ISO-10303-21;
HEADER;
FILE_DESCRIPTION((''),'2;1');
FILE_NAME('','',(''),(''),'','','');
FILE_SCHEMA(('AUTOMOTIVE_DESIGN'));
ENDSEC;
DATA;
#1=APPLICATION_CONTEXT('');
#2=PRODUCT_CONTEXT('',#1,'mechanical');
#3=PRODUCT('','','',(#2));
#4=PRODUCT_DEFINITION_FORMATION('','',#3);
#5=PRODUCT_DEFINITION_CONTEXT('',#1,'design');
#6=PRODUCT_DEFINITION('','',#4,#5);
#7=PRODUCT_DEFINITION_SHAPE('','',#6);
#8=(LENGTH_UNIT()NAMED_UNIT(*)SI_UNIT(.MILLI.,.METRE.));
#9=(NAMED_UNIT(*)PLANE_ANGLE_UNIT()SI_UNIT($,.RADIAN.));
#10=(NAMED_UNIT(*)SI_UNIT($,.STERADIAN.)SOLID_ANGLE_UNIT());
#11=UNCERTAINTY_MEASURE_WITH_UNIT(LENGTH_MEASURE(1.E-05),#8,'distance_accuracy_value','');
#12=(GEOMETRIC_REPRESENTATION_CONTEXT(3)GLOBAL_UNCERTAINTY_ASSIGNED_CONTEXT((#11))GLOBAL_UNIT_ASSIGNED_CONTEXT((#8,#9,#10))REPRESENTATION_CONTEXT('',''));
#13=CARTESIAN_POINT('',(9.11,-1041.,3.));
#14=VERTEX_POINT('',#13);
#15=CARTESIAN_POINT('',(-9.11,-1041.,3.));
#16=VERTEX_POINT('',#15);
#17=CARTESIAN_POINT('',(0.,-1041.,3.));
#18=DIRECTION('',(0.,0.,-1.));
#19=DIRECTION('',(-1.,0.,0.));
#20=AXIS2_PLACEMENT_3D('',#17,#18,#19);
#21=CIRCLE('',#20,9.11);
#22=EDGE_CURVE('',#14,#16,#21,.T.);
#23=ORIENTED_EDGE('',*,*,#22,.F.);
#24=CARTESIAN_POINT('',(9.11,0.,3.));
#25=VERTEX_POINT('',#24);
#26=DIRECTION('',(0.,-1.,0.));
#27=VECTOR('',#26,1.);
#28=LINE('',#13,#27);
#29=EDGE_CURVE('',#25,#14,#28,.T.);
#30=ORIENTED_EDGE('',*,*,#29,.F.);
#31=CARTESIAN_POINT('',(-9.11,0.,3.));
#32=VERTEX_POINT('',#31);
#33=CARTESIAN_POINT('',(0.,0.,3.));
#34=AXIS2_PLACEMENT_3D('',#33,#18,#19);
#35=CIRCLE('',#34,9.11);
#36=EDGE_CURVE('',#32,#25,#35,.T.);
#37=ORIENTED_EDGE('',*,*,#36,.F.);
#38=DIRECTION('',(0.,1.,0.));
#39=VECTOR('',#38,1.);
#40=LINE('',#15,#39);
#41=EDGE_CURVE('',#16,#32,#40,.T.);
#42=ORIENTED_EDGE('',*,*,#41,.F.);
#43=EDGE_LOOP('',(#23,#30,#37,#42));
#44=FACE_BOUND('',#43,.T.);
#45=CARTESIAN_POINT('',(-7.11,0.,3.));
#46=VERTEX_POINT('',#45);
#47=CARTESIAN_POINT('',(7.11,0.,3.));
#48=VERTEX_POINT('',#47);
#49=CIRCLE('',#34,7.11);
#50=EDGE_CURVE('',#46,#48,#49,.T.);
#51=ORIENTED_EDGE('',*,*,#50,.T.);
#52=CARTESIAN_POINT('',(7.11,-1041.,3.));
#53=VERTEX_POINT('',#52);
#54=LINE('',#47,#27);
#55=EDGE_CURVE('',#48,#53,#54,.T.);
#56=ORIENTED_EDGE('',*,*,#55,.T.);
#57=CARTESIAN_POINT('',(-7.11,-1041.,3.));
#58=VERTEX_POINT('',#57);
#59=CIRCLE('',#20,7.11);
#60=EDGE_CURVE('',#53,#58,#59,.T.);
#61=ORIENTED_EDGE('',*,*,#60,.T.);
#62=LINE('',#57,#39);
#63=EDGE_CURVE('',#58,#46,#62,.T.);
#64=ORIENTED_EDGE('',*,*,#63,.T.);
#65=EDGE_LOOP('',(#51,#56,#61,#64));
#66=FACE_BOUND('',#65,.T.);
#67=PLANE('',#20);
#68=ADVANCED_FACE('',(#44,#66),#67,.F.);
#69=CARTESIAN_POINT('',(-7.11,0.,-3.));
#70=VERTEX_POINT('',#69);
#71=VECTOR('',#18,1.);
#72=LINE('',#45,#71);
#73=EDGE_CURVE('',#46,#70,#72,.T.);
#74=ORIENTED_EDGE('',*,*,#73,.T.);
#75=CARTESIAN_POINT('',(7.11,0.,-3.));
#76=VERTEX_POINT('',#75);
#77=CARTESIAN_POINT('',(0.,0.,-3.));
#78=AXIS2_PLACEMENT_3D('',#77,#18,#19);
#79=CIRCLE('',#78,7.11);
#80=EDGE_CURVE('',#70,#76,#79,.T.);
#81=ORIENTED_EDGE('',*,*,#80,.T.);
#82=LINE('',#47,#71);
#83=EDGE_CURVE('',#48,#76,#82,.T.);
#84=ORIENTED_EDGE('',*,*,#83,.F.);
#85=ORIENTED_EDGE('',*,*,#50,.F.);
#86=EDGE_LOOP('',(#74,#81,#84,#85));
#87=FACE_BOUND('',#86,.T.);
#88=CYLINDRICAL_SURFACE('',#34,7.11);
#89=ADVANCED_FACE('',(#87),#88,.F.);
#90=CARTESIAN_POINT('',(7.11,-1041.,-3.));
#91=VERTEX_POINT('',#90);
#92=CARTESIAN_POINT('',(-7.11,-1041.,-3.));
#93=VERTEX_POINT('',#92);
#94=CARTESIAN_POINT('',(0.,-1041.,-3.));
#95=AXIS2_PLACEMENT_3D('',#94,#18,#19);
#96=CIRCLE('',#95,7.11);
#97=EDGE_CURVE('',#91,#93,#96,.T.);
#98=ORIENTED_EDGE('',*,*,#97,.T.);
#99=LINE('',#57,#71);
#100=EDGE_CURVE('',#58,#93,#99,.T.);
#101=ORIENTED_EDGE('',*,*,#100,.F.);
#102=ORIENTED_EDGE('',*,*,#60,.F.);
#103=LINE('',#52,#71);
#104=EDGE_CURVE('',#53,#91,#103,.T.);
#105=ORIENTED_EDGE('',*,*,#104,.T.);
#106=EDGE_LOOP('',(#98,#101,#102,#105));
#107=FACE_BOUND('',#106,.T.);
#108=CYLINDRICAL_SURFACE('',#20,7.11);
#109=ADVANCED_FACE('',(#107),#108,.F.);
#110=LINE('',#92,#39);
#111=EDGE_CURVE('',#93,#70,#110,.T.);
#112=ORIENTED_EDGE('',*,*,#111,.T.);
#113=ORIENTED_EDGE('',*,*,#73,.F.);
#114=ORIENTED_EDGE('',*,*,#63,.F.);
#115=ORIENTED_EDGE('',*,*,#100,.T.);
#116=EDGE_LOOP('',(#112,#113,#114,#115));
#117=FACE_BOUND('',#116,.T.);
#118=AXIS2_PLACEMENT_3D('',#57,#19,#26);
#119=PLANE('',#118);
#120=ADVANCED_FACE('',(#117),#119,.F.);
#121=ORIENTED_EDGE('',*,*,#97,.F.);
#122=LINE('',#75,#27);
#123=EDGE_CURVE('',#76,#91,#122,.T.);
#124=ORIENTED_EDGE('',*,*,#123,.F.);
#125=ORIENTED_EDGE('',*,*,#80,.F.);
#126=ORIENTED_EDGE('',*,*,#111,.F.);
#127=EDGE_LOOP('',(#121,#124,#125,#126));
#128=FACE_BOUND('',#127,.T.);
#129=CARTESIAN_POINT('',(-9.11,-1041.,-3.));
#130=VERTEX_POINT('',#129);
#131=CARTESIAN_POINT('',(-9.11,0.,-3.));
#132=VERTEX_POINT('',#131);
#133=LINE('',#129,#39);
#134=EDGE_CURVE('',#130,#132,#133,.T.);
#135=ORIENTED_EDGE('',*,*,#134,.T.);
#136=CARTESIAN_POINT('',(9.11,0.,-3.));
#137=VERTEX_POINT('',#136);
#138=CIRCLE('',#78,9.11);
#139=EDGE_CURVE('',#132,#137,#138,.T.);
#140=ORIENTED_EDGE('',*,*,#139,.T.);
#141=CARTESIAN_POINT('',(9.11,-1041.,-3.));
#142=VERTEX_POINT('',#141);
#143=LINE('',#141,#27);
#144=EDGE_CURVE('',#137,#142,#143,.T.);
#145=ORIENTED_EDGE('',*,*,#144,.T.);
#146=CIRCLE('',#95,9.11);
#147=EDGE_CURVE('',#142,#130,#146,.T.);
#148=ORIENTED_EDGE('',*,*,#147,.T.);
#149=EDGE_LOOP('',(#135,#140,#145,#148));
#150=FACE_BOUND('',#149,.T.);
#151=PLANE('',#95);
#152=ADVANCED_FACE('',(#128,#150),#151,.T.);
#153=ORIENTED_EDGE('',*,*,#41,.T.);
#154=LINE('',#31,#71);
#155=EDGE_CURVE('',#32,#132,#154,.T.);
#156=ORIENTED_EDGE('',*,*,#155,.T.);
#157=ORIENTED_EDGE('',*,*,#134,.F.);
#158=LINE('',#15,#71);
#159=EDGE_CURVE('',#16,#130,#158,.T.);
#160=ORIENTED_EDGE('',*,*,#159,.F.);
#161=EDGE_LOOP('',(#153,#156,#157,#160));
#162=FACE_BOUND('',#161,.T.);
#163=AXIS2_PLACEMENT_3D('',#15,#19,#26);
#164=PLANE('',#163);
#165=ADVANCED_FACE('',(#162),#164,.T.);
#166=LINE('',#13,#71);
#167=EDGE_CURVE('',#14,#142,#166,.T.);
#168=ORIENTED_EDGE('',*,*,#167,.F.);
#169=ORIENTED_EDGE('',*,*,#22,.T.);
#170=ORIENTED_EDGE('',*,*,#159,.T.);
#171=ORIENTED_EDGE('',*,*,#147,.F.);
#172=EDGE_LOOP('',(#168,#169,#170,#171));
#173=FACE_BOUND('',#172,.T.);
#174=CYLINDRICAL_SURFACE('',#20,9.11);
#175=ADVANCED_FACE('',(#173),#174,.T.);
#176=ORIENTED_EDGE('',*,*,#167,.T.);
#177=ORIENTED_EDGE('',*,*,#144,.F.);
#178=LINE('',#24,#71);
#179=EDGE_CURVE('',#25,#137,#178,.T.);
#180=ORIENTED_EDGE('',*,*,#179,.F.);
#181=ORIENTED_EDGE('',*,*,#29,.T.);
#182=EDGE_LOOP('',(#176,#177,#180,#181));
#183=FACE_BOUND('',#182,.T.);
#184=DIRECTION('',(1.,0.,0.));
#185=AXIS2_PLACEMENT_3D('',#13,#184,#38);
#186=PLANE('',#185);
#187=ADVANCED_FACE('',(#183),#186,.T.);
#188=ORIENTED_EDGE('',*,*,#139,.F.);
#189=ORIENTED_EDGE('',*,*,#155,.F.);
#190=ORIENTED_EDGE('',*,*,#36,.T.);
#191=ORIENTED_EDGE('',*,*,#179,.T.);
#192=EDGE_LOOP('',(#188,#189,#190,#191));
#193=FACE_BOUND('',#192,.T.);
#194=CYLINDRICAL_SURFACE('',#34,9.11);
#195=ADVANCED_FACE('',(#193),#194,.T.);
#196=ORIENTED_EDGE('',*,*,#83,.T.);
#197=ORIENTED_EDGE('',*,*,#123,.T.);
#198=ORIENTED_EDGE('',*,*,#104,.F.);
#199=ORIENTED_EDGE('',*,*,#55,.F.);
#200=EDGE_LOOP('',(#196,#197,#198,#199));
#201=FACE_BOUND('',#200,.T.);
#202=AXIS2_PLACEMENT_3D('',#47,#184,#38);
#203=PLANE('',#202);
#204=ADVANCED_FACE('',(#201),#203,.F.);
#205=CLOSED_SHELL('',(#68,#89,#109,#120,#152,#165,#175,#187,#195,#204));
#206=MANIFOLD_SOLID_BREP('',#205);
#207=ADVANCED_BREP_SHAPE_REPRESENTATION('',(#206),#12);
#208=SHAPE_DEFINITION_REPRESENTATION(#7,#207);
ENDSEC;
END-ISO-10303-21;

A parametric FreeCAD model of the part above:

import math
import FreeCAD as App
import Part
import Sketcher
from FreeCAD import Vector
Q = App.Units.Quantity

doc = App.newDocument("Part")
params = doc.addObject("Spreadsheet::Sheet", "Params")
for row, (alias, value) in enumerate([
    ("sketch1_height", "1041 mm"),
    ("sketch1_radius", "9.11 mm"),
    ("sketch1_radius2", "7.11 mm"),
    ("pad1_length", "6 mm"),
], start=1):
    params.set(f"A{row}", alias)
    params.set(f"B{row}", "=" + value)
    params.setAlias(f"B{row}", alias)

body = doc.addObject("PartDesign::Body", "Body")

# Sketch on XY plane
sketch1 = body.newObject("Sketcher::SketchObject", "Sketch")
sketch1.AttachmentSupport = (doc.getObject("XY_Plane"), [""])
sketch1.MapMode = "FlatFace"
sketch1.addGeometry(Part.LineSegment(Vector(-9, 0, 0), Vector(-9, -1041, 0)), False)
sketch1.addGeometry(Part.ArcOfCircle(Part.Circle(Vector(0, -1041, 0), Vector(0, 0, 1), 9), math.radians(180), math.radians(360)), False)
sketch1.addGeometry(Part.LineSegment(Vector(9, -1041, 0), Vector(9, 0, 0)), False)
sketch1.addGeometry(Part.ArcOfCircle(Part.Circle(Vector(0, 0, 0), Vector(0, 0, 1), 9), math.radians(0), math.radians(180)), False)
sketch1.addGeometry(Part.LineSegment(Vector(-7, -1041, 0), Vector(-7, 0, 0)), False)
sketch1.addGeometry(Part.ArcOfCircle(Part.Circle(Vector(0, 0, 0), Vector(0, 0, 1), 7), math.radians(0), math.radians(180)), False)
sketch1.addGeometry(Part.LineSegment(Vector(7, 0, 0), Vector(7, -1041, 0)), False)
sketch1.addGeometry(Part.ArcOfCircle(Part.Circle(Vector(0, -1041, 0), Vector(0, 0, 1), 7), math.radians(180), math.radians(360)), False)
sketch1.addConstraint(Sketcher.Constraint("Tangent", 0, 2, 1, 1))
sketch1.addConstraint(Sketcher.Constraint("Tangent", 1, 2, 2, 1))
sketch1.addConstraint(Sketcher.Constraint("Tangent", 2, 2, 3, 1))
sketch1.addConstraint(Sketcher.Constraint("Tangent", 3, 2, 0, 1))
sketch1.addConstraint(Sketcher.Constraint("Tangent", 4, 2, 5, 2))
sketch1.addConstraint(Sketcher.Constraint("Tangent", 5, 1, 6, 1))
sketch1.addConstraint(Sketcher.Constraint("Tangent", 6, 2, 7, 2))
sketch1.addConstraint(Sketcher.Constraint("Tangent", 7, 1, 4, 1))
sketch1.addConstraint(Sketcher.Constraint("Vertical", 0))
sketch1.addConstraint(Sketcher.Constraint("Vertical", 2))
sketch1.addConstraint(Sketcher.Constraint("Vertical", 4))
sketch1.addConstraint(Sketcher.Constraint("Vertical", 6))
sketch1.addConstraint(Sketcher.Constraint("Coincident", 3, 3, -1, 1))
sketch1.addConstraint(Sketcher.Constraint("Coincident", 5, 3, -1, 1))
sketch1.addConstraint(Sketcher.Constraint("Horizontal", 7, 3, 0, 2))
sketch1.addConstraint(Sketcher.Constraint("DistanceY", 0, 2, 0, 1, Q("1041 mm")))
sketch1.addConstraint(Sketcher.Constraint("Radius", 1, Q("9.11 mm")))
sketch1.addConstraint(Sketcher.Constraint("Radius", 5, Q("7.11 mm")))
sketch1.setExpression("Constraints[15]", "Params.sketch1_height")
sketch1.setExpression("Constraints[16]", "Params.sketch1_radius")
sketch1.setExpression("Constraints[17]", "Params.sketch1_radius2")
pad1 = body.newObject("PartDesign::Pad", "Pad")
pad1.Profile = sketch1
pad1.setExpression("Length", "Params.pad1_length")
pad1.Midplane = True

doc.recompute()
